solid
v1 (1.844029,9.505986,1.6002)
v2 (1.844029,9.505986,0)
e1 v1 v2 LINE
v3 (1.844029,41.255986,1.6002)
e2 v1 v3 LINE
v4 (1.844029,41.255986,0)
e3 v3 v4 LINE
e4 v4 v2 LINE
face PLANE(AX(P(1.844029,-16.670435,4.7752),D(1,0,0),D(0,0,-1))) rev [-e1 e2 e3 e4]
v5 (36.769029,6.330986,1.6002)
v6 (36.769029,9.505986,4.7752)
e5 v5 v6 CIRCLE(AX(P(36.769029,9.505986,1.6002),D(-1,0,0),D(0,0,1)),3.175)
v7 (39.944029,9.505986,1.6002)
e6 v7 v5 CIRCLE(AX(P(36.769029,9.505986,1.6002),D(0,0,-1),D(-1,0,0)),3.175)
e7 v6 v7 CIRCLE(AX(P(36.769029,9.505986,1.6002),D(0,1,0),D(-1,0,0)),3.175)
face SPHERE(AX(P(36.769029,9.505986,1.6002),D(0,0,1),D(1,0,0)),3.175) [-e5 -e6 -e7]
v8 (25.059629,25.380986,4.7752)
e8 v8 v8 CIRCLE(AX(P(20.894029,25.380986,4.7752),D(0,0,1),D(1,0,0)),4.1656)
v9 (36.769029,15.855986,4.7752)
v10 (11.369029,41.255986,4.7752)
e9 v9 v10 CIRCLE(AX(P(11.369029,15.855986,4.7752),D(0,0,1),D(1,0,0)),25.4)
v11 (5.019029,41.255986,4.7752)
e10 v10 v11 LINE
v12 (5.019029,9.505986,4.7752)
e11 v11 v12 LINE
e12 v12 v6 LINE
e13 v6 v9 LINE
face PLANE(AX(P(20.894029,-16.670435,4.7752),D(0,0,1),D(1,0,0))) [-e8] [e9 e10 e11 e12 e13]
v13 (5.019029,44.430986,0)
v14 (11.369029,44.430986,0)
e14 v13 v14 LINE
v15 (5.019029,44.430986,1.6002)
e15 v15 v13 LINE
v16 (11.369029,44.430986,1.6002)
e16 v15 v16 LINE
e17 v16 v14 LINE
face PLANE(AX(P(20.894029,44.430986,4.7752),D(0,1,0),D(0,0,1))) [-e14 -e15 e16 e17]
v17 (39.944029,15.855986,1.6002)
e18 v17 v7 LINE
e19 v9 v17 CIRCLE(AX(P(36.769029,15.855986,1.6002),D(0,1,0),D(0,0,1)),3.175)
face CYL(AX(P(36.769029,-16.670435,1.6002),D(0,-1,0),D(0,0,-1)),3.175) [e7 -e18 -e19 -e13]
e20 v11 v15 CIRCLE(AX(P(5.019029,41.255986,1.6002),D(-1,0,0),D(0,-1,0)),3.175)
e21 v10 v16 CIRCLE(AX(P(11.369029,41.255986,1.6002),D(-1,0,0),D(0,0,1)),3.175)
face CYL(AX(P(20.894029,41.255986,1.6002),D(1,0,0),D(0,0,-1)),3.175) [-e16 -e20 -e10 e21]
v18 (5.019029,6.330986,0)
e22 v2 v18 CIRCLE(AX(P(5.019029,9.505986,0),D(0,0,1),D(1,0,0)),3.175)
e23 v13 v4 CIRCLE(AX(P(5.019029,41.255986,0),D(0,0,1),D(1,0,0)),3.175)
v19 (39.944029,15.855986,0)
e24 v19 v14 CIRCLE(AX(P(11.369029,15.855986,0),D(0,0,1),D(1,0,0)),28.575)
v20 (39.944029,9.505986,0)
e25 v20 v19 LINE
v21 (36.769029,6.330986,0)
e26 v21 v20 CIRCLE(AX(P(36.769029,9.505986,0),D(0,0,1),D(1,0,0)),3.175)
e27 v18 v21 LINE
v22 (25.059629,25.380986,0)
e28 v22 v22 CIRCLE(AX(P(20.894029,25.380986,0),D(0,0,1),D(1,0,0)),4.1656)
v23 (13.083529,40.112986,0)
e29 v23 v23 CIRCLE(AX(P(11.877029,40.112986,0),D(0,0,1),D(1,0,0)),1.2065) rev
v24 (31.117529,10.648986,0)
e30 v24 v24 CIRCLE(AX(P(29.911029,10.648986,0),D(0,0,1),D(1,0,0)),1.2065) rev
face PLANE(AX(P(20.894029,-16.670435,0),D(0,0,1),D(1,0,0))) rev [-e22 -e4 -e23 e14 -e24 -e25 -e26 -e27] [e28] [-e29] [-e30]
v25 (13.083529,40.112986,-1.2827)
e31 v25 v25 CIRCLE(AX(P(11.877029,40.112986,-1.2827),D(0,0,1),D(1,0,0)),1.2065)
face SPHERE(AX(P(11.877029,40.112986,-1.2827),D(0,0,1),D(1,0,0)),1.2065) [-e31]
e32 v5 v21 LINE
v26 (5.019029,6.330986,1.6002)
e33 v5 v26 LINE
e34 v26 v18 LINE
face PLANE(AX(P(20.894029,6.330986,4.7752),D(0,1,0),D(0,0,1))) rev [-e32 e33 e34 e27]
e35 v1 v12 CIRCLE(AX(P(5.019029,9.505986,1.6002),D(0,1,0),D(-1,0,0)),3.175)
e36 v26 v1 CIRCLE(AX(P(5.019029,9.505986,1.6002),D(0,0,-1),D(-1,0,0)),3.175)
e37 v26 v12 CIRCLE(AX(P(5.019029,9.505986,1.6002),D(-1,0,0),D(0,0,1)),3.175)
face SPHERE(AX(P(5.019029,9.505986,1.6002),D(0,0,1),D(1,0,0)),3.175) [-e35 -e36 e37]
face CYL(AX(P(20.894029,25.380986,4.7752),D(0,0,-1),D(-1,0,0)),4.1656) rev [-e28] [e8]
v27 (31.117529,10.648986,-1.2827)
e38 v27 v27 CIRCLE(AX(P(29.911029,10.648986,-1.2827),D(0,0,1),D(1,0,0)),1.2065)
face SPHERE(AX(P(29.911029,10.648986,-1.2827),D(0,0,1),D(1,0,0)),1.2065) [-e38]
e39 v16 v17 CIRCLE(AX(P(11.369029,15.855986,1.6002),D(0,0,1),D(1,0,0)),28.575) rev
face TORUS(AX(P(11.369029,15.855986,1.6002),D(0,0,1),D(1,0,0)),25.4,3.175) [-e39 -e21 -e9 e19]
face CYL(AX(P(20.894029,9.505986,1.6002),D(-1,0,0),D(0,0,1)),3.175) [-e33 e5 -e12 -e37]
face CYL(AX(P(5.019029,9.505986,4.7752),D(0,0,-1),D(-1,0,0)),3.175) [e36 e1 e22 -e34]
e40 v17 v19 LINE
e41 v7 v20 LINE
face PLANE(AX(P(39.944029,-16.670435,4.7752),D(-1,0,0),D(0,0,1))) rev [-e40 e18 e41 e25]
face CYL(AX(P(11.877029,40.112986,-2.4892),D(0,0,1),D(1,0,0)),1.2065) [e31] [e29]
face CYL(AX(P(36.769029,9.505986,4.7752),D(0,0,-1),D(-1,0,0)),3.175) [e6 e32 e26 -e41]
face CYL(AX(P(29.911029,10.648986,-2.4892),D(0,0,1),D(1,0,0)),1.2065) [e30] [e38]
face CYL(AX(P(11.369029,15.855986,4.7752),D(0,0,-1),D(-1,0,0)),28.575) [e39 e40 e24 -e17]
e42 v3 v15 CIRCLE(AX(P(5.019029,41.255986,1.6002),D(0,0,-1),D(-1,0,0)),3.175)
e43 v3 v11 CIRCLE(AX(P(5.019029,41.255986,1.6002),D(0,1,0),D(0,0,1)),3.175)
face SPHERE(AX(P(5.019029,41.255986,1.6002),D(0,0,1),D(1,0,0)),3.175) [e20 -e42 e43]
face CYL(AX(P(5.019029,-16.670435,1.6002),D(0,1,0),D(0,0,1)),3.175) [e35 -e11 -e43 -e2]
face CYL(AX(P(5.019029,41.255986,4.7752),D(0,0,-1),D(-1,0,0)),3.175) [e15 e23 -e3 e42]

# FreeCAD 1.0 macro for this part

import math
import FreeCAD as App
import Part
import Sketcher

V = App.Vector
Q = App.Units.Quantity


def edges_at(feature, points):
    """Names of the edges that pass closest to the given points."""
    edges = feature.Shape.Edges
    near = lambda p: min(range(len(edges)), key=lambda i: edges[i].distToShape(Part.Vertex(*p))[0])
    return sorted({f"Edge{near(p) + 1}" for p in points})

doc = App.newDocument("Part")
body = doc.addObject("PartDesign::Body", "Body")

sketch1 = doc.addObject("Sketcher::SketchObject", "Sketch")
body.addObject(sketch1)
sketch1.AttachmentSupport = (doc.XY_Plane, [""])
sketch1.MapMode = "FlatFace"
sketch1.addGeometry([
    Part.LineSegment(V(39.9, 9.5, 0), V(39.9, 15.9, 0)),
    Part.ArcOfCircle(Part.Circle(V(11.4, 15.9, 0), V(0, 0, 1), 28.6), math.radians(0), math.radians(90)),
    Part.LineSegment(V(11.4, 44.4, 0), V(5, 44.4, 0)),
    Part.ArcOfCircle(Part.Circle(V(5, 41.3, 0), V(0, 0, 1), 3.2), math.radians(90), math.radians(180)),
    Part.LineSegment(V(1.8, 41.3, 0), V(1.8, 9.5, 0)),
    Part.ArcOfCircle(Part.Circle(V(5, 9.5, 0), V(0, 0, 1), 3.2), math.radians(-180), math.radians(-90)),
    Part.LineSegment(V(5, 6.3, 0), V(36.8, 6.3, 0)),
    Part.ArcOfCircle(Part.Circle(V(36.8, 9.5, 0), V(0, 0, 1), 3.2), math.radians(-90), math.radians(0)),
    Part.Circle(V(20.9, 25.4, 0), V(0, 0, 1), 4.2),
], False)
sketch1.addConstraint([
    Sketcher.Constraint("Tangent", 0, 2, 1, 1),
    Sketcher.Constraint("Tangent", 1, 2, 2, 1),
    Sketcher.Constraint("Tangent", 2, 2, 3, 1),
    Sketcher.Constraint("Tangent", 3, 2, 4, 1),
    Sketcher.Constraint("Tangent", 4, 2, 5, 1),
    Sketcher.Constraint("Tangent", 5, 2, 6, 1),
    Sketcher.Constraint("Tangent", 6, 2, 7, 1),
    Sketcher.Constraint("Tangent", 7, 2, 0, 1),
    Sketcher.Constraint("Vertical", 0),
    Sketcher.Constraint("Horizontal", 2),
    Sketcher.Constraint("Vertical", 4),
    Sketcher.Constraint("Horizontal", 6),
    Sketcher.Constraint("Equal", 3, 5),
    Sketcher.Constraint("Equal", 5, 7),
    Sketcher.Constraint("Equal", 2, 0),
    Sketcher.Constraint("Diameter", 8, Q("0.328 in")),
    Sketcher.Constraint("Radius", 1, Q("1.125 in")),
    Sketcher.Constraint("Radius", 3, Q("0.125 in")),
    Sketcher.Constraint("DistanceX", 2, 2, 2, 1, Q("0.25 in")),
    Sketcher.Constraint("DistanceX", 8, 3, 0, 2, Q("0.75 in")),
    Sketcher.Constraint("DistanceY", 8, 3, 1, 2, Q("0.75 in")),
    Sketcher.Constraint("DistanceX", -1, 1, 1, 3, Q("11.369029 mm")),
    Sketcher.Constraint("DistanceY", -1, 1, 1, 3, Q("15.855986 mm")),
])
pad1 = doc.addObject("PartDesign::Pad", "Pad")
body.addObject(pad1)
pad1.Profile = sketch1
pad1.Length = Q("0.188 in")
doc.recompute()

fillet = doc.addObject("PartDesign::Fillet", "Fillet")
body.addObject(fillet)
fillet.Base = (pad1, edges_at(pad1, [
    (39.944, 12.681, 4.775),
    (31.575, 36.062, 4.775),
    (8.194, 44.431, 4.775),
    (2.774, 43.501, 4.775),
    (1.844, 25.381, 4.775),
    (2.774, 7.261, 4.775),
    (20.894, 6.331, 4.775),
    (39.014, 7.261, 4.775),
]))
fillet.Radius = Q("0.125 in")

sketch2 = doc.addObject("Sketcher::SketchObject", "Sketch001")
body.addObject(sketch2)
sketch2.AttachmentSupport = (doc.XY_Plane, [""])
sketch2.MapMode = "FlatFace"
sketch2.addGeometry([
    Part.Circle(V(29.9, 10.6, 0), V(0, 0, 1), 1.2),
    Part.Circle(V(11.9, 40.1, 0), V(0, 0, 1), 1.2),
], False)
sketch2.addConstraint([
    Sketcher.Constraint("Equal", 0, 1),
    Sketcher.Constraint("Diameter", 0, Q("0.095 in")),
    Sketcher.Constraint("DistanceX", 1, 3, 0, 3, Q("0.71 in")),
    Sketcher.Constraint("DistanceY", 0, 3, 1, 3, Q("1.16 in")),
    Sketcher.Constraint("DistanceX", -1, 1, 0, 3, Q("29.911029 mm")),
    Sketcher.Constraint("DistanceY", -1, 1, 0, 3, Q("10.648986 mm")),
])
pad2 = doc.addObject("PartDesign::Pad", "Pad001")
body.addObject(pad2)
pad2.Profile = sketch2
pad2.Length = Q("0.098 in")
pad2.Reversed = True
doc.recompute()

fillet2 = doc.addObject("PartDesign::Fillet", "Fillet001")
body.addObject(fillet2)
fillet2.Base = (pad2, edges_at(pad2, [(28.705, 10.649, -2.489), (10.671, 40.113, -2.489)]))
fillet2.Radius = Q("0.0475 in")

doc.recompute()
